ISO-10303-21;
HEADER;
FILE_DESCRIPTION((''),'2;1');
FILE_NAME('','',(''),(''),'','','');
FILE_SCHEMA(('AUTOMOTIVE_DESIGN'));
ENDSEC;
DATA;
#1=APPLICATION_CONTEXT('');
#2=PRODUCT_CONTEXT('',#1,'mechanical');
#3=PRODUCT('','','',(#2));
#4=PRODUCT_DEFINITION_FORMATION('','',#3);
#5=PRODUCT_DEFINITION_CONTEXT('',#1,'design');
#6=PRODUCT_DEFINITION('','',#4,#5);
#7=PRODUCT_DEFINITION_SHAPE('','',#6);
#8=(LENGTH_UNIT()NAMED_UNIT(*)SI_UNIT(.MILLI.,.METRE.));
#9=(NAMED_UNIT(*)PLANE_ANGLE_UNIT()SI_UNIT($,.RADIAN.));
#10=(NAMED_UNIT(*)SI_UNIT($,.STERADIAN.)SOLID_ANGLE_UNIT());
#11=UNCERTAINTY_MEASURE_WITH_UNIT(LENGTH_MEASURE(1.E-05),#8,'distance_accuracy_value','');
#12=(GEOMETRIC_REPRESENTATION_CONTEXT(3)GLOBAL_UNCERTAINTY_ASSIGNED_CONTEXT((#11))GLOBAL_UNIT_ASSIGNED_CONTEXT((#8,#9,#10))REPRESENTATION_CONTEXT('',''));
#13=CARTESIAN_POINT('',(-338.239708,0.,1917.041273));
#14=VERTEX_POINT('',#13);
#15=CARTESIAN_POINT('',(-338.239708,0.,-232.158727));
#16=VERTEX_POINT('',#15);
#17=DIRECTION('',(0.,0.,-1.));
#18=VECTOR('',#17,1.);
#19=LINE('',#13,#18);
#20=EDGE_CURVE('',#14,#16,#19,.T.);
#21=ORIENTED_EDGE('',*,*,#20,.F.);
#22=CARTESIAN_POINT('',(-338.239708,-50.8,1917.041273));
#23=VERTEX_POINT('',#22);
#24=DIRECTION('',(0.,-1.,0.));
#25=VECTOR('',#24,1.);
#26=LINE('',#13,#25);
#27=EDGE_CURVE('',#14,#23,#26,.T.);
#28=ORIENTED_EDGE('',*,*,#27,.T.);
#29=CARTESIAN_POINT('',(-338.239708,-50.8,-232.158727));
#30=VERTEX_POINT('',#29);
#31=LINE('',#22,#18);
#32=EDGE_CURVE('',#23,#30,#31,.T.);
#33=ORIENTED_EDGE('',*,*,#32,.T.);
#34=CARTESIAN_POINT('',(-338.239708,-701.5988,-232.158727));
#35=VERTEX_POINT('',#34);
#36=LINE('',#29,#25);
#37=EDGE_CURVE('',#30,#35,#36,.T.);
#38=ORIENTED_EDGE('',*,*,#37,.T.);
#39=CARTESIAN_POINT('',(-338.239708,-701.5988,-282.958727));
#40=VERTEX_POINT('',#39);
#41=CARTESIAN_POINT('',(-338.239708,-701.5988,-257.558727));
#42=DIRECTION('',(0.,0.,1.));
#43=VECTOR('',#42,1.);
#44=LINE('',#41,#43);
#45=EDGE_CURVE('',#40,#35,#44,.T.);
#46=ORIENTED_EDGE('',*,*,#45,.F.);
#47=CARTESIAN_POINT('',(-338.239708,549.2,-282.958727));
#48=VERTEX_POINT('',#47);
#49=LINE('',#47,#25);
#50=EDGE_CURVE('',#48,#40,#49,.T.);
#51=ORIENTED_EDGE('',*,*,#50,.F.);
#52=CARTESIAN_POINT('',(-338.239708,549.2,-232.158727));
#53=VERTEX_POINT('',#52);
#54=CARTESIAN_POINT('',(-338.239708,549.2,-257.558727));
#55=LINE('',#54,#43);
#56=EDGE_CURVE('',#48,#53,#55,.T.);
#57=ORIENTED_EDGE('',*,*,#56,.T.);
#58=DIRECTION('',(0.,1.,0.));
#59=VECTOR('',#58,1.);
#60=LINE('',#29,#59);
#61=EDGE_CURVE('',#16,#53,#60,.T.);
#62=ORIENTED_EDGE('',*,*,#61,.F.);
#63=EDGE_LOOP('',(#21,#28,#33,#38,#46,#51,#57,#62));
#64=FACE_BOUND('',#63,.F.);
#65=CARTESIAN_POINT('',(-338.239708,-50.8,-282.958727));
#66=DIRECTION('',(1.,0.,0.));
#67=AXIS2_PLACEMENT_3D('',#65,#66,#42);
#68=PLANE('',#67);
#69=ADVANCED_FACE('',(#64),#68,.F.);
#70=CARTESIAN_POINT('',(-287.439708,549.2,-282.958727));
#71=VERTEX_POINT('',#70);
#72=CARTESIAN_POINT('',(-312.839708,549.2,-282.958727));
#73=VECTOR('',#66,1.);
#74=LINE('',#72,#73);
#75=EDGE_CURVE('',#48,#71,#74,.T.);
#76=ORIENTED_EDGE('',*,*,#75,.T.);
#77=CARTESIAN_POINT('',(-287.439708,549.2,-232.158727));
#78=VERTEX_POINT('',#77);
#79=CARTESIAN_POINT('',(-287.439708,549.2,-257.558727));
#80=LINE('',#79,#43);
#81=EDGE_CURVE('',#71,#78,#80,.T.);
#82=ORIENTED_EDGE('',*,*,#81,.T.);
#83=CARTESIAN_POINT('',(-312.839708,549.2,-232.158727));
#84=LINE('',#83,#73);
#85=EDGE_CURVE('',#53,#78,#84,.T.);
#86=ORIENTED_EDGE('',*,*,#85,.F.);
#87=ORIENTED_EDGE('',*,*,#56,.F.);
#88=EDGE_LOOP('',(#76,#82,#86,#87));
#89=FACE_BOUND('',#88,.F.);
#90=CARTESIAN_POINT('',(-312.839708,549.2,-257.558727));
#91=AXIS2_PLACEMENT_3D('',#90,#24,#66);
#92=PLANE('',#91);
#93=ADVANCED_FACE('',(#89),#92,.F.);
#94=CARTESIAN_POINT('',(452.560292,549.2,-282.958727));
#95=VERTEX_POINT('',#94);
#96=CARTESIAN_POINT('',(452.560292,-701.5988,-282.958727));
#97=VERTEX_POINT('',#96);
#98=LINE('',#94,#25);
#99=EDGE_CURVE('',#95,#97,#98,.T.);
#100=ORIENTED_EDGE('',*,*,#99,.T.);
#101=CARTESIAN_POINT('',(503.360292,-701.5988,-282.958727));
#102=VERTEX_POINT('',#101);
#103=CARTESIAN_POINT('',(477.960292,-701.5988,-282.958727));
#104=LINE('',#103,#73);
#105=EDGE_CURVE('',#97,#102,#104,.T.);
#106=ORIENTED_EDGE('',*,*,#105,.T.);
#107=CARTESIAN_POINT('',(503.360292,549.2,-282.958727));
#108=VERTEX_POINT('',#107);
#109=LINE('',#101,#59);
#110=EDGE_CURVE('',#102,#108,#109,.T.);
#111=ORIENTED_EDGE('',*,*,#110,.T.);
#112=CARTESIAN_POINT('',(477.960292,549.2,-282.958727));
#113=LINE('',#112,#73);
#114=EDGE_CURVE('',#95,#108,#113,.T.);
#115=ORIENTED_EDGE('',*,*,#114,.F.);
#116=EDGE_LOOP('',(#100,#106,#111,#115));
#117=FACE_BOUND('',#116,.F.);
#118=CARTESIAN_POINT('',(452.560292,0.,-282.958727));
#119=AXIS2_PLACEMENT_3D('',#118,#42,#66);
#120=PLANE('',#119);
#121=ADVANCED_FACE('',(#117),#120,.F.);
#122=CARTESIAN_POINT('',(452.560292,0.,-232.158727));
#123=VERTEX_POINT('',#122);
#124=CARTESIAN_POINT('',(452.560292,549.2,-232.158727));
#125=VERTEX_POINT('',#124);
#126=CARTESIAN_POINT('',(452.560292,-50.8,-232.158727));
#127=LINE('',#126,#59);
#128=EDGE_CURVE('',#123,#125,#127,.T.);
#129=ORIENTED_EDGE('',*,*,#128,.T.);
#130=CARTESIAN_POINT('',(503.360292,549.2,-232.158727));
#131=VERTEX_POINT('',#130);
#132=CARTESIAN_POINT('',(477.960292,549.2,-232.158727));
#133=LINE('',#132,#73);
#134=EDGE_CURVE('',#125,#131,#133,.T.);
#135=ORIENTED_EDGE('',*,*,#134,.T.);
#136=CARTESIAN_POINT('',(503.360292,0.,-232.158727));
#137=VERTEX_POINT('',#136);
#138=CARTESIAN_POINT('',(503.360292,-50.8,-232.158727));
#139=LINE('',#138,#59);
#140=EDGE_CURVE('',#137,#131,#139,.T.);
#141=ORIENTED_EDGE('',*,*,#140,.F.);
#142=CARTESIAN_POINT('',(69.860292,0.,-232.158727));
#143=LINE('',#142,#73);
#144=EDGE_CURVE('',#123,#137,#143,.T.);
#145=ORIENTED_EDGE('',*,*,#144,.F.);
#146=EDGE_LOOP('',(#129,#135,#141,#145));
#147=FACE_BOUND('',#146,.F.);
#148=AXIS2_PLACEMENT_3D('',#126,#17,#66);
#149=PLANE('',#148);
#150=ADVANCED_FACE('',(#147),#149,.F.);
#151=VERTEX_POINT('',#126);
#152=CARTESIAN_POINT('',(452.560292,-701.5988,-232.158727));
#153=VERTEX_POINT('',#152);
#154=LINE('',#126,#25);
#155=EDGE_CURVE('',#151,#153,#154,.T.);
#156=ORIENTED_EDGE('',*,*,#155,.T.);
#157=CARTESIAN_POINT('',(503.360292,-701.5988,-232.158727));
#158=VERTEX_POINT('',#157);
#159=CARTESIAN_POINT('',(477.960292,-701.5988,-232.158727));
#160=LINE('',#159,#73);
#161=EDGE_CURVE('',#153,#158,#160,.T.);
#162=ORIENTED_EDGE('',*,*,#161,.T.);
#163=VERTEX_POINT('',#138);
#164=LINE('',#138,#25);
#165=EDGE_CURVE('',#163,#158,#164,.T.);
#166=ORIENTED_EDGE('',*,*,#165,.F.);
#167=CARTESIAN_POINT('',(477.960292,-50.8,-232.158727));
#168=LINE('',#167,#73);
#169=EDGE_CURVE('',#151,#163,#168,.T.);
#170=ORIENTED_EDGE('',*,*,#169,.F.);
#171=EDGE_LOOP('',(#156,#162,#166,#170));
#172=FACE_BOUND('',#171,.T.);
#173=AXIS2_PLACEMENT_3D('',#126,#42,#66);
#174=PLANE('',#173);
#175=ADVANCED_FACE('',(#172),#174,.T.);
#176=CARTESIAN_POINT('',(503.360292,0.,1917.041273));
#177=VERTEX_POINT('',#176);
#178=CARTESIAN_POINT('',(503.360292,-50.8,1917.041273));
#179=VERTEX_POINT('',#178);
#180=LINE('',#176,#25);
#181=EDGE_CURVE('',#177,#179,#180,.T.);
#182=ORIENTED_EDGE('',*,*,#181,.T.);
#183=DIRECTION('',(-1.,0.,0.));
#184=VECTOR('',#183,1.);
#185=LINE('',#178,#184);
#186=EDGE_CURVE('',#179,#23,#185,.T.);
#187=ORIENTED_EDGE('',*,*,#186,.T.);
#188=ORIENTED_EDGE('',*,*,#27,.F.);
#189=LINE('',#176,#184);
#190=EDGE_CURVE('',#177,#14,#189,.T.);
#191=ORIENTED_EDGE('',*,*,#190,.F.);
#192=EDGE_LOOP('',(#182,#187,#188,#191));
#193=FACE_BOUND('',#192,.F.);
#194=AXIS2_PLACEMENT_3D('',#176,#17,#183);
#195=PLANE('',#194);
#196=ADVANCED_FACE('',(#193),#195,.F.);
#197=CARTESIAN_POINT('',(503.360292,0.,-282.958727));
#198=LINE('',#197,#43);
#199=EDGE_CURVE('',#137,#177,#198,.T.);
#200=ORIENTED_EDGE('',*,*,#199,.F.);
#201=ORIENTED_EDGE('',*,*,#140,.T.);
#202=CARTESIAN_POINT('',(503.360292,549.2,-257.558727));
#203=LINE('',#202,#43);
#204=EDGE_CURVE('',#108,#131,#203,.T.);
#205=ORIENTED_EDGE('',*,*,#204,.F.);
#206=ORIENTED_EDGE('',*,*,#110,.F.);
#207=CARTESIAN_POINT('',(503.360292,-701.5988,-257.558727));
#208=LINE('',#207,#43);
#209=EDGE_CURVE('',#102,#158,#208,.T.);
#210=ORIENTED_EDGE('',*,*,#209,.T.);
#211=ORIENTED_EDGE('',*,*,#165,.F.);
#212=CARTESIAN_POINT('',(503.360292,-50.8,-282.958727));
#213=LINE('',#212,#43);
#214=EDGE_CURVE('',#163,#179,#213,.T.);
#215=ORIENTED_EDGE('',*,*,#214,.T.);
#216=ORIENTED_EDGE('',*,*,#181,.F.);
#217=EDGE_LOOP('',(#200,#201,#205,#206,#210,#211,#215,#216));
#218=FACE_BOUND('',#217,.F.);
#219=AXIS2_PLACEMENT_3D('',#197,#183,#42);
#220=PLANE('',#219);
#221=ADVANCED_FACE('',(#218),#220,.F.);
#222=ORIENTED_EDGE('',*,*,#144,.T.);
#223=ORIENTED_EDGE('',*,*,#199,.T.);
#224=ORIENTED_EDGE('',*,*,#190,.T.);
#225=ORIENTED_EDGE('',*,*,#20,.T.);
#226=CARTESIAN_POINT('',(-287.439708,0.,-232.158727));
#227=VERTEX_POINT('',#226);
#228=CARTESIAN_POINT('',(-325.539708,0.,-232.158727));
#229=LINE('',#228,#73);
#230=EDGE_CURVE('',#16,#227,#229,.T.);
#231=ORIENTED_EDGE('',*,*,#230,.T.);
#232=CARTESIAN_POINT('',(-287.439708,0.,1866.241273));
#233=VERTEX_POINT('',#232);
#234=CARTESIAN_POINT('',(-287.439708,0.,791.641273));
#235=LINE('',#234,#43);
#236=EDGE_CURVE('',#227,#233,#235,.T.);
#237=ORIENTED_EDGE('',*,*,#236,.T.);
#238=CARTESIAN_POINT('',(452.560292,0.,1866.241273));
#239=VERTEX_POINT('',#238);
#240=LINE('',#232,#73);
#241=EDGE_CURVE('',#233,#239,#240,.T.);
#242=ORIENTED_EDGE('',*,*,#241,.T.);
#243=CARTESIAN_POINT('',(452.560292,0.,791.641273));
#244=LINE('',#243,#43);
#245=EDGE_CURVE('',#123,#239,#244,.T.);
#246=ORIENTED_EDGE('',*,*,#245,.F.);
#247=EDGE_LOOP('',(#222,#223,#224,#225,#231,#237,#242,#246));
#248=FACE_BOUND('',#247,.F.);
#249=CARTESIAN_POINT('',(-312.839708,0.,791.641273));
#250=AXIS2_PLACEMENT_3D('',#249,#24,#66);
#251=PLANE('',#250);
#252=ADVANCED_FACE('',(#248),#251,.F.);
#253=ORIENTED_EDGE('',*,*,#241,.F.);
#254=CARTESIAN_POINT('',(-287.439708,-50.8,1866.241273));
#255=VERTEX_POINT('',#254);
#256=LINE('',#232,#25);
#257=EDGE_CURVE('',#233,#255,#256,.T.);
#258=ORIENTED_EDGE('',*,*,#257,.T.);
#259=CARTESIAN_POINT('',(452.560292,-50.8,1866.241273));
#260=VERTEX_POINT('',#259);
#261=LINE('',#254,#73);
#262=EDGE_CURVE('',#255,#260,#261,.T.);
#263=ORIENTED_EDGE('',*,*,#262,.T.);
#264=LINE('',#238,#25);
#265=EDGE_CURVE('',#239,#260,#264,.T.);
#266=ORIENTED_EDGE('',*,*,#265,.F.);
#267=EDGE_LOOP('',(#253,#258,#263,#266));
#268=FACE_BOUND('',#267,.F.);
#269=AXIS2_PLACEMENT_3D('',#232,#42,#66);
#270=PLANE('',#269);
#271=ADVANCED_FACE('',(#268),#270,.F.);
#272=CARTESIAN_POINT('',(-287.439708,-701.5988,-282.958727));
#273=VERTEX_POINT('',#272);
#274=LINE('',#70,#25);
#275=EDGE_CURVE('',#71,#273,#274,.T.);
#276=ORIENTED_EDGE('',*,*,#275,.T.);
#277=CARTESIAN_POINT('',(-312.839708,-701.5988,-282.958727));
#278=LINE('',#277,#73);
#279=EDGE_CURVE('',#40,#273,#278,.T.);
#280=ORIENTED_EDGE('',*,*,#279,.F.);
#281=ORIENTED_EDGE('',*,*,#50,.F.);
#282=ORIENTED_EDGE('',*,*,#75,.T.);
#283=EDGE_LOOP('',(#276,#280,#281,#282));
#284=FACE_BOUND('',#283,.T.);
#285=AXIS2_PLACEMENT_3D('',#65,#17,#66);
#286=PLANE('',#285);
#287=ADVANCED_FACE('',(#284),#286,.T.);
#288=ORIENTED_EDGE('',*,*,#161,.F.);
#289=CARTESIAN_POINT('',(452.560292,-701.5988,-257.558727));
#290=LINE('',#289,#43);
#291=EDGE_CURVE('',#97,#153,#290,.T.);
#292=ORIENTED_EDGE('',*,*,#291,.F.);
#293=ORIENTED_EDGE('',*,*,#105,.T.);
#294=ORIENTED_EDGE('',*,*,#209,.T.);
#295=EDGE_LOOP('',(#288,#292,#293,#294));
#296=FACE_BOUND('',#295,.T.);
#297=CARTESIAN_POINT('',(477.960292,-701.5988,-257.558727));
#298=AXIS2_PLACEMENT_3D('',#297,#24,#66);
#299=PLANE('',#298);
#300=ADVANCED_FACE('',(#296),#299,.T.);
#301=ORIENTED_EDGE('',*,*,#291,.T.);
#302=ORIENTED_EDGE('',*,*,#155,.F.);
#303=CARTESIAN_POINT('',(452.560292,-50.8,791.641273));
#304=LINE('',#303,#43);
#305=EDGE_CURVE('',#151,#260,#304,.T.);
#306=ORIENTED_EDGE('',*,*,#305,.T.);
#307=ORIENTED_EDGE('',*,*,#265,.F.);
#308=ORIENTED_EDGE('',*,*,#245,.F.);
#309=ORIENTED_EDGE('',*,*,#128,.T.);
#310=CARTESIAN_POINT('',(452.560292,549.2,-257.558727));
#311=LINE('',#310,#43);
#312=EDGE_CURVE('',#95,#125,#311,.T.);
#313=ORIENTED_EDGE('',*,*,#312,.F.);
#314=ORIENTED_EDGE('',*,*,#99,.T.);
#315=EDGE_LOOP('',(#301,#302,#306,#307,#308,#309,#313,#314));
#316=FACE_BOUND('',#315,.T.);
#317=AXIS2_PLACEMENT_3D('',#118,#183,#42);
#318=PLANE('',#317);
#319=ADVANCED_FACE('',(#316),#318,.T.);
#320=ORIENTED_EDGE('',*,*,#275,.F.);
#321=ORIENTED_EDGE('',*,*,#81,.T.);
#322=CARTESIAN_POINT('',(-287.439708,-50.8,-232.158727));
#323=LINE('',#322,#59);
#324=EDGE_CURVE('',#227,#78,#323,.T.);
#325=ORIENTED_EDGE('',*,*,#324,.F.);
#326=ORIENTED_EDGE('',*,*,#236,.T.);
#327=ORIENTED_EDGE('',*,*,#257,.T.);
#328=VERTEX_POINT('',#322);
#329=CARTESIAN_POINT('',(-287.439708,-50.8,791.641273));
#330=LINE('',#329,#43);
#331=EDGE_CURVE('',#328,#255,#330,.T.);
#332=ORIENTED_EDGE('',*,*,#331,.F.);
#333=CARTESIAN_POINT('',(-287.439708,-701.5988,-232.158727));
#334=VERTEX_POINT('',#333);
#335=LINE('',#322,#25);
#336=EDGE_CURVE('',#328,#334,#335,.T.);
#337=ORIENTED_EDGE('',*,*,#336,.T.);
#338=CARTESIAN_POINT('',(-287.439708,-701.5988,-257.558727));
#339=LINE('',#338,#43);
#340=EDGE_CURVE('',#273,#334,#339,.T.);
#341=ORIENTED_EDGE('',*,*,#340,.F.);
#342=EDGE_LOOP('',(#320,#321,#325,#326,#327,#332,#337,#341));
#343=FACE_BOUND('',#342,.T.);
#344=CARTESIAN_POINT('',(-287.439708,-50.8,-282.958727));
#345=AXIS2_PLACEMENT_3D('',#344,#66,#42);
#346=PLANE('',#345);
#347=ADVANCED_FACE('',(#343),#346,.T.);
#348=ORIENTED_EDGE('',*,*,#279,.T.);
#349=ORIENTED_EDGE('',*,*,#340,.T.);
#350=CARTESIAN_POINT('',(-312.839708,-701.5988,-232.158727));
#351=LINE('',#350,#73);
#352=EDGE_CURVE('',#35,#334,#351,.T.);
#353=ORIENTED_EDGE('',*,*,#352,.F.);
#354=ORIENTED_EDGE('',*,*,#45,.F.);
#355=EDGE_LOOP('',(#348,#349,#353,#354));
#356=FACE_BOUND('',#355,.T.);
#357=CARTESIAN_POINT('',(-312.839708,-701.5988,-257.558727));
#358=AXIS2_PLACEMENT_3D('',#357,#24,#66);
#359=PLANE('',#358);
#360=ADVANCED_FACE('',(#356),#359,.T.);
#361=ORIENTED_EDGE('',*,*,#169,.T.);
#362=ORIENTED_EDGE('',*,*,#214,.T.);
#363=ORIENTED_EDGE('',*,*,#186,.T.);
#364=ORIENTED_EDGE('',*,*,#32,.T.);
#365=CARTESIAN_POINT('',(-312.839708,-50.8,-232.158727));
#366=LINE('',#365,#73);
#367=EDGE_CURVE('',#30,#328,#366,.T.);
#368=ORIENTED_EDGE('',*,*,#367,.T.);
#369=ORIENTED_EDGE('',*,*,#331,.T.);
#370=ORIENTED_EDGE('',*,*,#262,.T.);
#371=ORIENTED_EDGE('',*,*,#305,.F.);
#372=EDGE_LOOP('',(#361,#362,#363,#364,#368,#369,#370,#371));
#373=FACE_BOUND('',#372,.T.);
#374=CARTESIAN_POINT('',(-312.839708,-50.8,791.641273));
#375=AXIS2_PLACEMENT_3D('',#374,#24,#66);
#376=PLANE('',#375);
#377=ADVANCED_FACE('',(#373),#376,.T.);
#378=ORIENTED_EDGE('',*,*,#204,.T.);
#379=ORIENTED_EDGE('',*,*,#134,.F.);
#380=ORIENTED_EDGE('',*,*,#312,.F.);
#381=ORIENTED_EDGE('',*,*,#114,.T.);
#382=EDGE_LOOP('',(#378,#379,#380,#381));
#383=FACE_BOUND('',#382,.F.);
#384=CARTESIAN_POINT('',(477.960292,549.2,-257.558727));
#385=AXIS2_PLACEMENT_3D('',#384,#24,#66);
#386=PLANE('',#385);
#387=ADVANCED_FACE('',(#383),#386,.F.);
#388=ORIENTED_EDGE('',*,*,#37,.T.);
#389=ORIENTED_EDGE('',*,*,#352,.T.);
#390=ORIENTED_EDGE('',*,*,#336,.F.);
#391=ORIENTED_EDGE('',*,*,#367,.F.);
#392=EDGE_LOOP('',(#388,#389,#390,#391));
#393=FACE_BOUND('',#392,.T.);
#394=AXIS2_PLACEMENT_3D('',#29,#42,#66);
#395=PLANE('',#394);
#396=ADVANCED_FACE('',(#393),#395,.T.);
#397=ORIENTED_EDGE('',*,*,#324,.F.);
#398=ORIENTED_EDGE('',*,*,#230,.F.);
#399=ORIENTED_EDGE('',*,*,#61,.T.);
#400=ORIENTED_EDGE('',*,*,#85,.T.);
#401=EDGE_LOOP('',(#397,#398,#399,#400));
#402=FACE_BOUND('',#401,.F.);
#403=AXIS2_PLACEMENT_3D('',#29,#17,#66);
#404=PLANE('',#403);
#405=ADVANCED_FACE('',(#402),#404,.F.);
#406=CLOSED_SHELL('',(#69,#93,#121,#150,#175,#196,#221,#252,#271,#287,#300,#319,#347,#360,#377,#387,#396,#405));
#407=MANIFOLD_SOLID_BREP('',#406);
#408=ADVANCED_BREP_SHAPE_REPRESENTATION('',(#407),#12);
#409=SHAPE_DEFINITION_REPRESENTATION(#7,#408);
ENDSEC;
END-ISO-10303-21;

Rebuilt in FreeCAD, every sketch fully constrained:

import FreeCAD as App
import Part
import Sketcher

V = App.Vector

doc = App.newDocument("Part")
params = doc.addObject("Spreadsheet::Sheet", "Params")
for row, (alias, value) in enumerate([
    ("sketch1_width", "740 mm"),
    ("sketch1_height", "2200 mm"),
    ("sketch1_width2", "50.8 mm"),
    ("sketch1_height2", "2149.2 mm"),
    ("pad1_length", "50.8 mm"),
    ("sketch2_width", "50.8 mm"),
    ("pad2_length", "650.7988 mm"),
    ("pad2_length2", "600 mm"),
], start=1):
    params.set(f"A{row}", alias)
    params.set(f"B{row}", "=" + value)
    params.setAlias(f"B{row}", alias)

body = doc.addObject("PartDesign::Body", "Body")

sketch1 = body.newObject("Sketcher::SketchObject", "Sketch")
sketch1.AttachmentSupport = (doc.getObject("XZ_Plane"), [""])
sketch1.MapMode = "FlatFace"
sketch1.addGeometry([
    Part.LineSegment(V(-338, -283, 0), V(-287, -283, 0)),
    Part.LineSegment(V(-287, -283, 0), V(-287, 1866, 0)),
    Part.LineSegment(V(-287, 1866, 0), V(453, 1866, 0)),
    Part.LineSegment(V(453, 1866, 0), V(453, -283, 0)),
    Part.LineSegment(V(453, -283, 0), V(503, -283, 0)),
    Part.LineSegment(V(503, -283, 0), V(503, 1917, 0)),
    Part.LineSegment(V(503, 1917, 0), V(-338, 1917, 0)),
    Part.LineSegment(V(-338, 1917, 0), V(-338, -283, 0)),
], False)
sketch1.addConstraint([
    Sketcher.Constraint("Coincident", 0, 2, 1, 1),
    Sketcher.Constraint("Coincident", 1, 2, 2, 1),
    Sketcher.Constraint("Coincident", 2, 2, 3, 1),
    Sketcher.Constraint("Coincident", 3, 2, 4, 1),
    Sketcher.Constraint("Coincident", 4, 2, 5, 1),
    Sketcher.Constraint("Coincident", 5, 2, 6, 1),
    Sketcher.Constraint("Coincident", 6, 2, 7, 1),
    Sketcher.Constraint("Coincident", 7, 2, 0, 1),
    Sketcher.Constraint("Horizontal", 0),
    Sketcher.Constraint("Vertical", 1),
    Sketcher.Constraint("Horizontal", 2),
    Sketcher.Constraint("Vertical", 3),
    Sketcher.Constraint("Horizontal", 4),
    Sketcher.Constraint("Vertical", 5),
    Sketcher.Constraint("Horizontal", 6),
    Sketcher.Constraint("Vertical", 7),
    Sketcher.Constraint("Horizontal", 0, 2, 3, 2),
    Sketcher.Constraint("Equal", 0, 4),
    Sketcher.Constraint("DistanceX", 2, 1, 2, 2, 740.0),
    Sketcher.Constraint("DistanceY", 5, 1, 5, 2, 2200.0),
    Sketcher.Constraint("DistanceX", 0, 1, 0, 2, 50.8),
    Sketcher.Constraint("DistanceY", 1, 1, 1, 2, 2149.2),
    Sketcher.Constraint("DistanceX", 0, 2, -1, 1, 287.439708),
    Sketcher.Constraint("DistanceY", 0, 2, -1, 1, 282.958727),
])
sketch1.setExpression("Constraints[18]", "Params.sketch1_width")
sketch1.setExpression("Constraints[19]", "Params.sketch1_height")
sketch1.setExpression("Constraints[20]", "Params.sketch1_width2")
sketch1.setExpression("Constraints[21]", "Params.sketch1_height2")
pad1 = body.newObject("PartDesign::Pad", "Pad")
pad1.Profile = sketch1
pad1.setExpression("Length", "Params.pad1_length")

sketch2 = body.newObject("Sketcher::SketchObject", "Sketch001")
sketch2.AttachmentSupport = (doc.getObject("XZ_Plane"), [""])
sketch2.MapMode = "FlatFace"
sketch2.AttachmentOffset = App.Placement(V(0, 0, 50.8), App.Rotation())
sketch2.addGeometry([
    Part.LineSegment(V(-338, -232, 0), V(-338, -283, 0)),
    Part.LineSegment(V(-338, -283, 0), V(-287, -283, 0)),
    Part.LineSegment(V(-287, -283, 0), V(-287, -232, 0)),
    Part.LineSegment(V(-287, -232, 0), V(-338, -232, 0)),
    Part.LineSegment(V(453, -232, 0), V(453, -283, 0)),
    Part.LineSegment(V(453, -283, 0), V(503, -283, 0)),
    Part.LineSegment(V(503, -283, 0), V(503, -232, 0)),
    Part.LineSegment(V(503, -232, 0), V(453, -232, 0)),
], False)
sketch2.addConstraint([
    Sketcher.Constraint("Coincident", 0, 2, 1, 1),
    Sketcher.Constraint("Coincident", 1, 2, 2, 1),
    Sketcher.Constraint("Coincident", 2, 2, 3, 1),
    Sketcher.Constraint("Coincident", 3, 2, 0, 1),
    Sketcher.Constraint("Coincident", 4, 2, 5, 1),
    Sketcher.Constraint("Coincident", 5, 2, 6, 1),
    Sketcher.Constraint("Coincident", 6, 2, 7, 1),
    Sketcher.Constraint("Coincident", 7, 2, 4, 1),
    Sketcher.Constraint("Vertical", 0),
    Sketcher.Constraint("Horizontal", 1),
    Sketcher.Constraint("Vertical", 2),
    Sketcher.Constraint("Horizontal", 3),
    Sketcher.Constraint("Vertical", 4),
    Sketcher.Constraint("Horizontal", 5),
    Sketcher.Constraint("Vertical", 6),
    Sketcher.Constraint("Horizontal", 7),
    Sketcher.Constraint("Horizontal", 1, 2, 4, 2),
    Sketcher.Constraint("Horizontal", 3, 2, 6, 2),
    Sketcher.Constraint("Equal", 3, 5),
    Sketcher.Constraint("Equal", 7, 0),
    Sketcher.Constraint("DistanceX", 1, 1, 1, 2, 50.8),
    Sketcher.Constraint("DistanceX", 1, 2, 4, 2, 740.0),
    Sketcher.Constraint("DistanceX", 0, 2, -1, 1, 338.239708),
    Sketcher.Constraint("DistanceY", 0, 2, -1, 1, 282.958727),
])
sketch2.setExpression("Constraints[20]", "Params.sketch2_width")
pad2 = body.newObject("PartDesign::Pad", "Pad001")
pad2.Profile = sketch2
pad2.Type = "TwoLengths"
pad2.setExpression("Length", "Params.pad2_length")
pad2.setExpression("Length2", "Params.pad2_length2")

doc.recompute()
